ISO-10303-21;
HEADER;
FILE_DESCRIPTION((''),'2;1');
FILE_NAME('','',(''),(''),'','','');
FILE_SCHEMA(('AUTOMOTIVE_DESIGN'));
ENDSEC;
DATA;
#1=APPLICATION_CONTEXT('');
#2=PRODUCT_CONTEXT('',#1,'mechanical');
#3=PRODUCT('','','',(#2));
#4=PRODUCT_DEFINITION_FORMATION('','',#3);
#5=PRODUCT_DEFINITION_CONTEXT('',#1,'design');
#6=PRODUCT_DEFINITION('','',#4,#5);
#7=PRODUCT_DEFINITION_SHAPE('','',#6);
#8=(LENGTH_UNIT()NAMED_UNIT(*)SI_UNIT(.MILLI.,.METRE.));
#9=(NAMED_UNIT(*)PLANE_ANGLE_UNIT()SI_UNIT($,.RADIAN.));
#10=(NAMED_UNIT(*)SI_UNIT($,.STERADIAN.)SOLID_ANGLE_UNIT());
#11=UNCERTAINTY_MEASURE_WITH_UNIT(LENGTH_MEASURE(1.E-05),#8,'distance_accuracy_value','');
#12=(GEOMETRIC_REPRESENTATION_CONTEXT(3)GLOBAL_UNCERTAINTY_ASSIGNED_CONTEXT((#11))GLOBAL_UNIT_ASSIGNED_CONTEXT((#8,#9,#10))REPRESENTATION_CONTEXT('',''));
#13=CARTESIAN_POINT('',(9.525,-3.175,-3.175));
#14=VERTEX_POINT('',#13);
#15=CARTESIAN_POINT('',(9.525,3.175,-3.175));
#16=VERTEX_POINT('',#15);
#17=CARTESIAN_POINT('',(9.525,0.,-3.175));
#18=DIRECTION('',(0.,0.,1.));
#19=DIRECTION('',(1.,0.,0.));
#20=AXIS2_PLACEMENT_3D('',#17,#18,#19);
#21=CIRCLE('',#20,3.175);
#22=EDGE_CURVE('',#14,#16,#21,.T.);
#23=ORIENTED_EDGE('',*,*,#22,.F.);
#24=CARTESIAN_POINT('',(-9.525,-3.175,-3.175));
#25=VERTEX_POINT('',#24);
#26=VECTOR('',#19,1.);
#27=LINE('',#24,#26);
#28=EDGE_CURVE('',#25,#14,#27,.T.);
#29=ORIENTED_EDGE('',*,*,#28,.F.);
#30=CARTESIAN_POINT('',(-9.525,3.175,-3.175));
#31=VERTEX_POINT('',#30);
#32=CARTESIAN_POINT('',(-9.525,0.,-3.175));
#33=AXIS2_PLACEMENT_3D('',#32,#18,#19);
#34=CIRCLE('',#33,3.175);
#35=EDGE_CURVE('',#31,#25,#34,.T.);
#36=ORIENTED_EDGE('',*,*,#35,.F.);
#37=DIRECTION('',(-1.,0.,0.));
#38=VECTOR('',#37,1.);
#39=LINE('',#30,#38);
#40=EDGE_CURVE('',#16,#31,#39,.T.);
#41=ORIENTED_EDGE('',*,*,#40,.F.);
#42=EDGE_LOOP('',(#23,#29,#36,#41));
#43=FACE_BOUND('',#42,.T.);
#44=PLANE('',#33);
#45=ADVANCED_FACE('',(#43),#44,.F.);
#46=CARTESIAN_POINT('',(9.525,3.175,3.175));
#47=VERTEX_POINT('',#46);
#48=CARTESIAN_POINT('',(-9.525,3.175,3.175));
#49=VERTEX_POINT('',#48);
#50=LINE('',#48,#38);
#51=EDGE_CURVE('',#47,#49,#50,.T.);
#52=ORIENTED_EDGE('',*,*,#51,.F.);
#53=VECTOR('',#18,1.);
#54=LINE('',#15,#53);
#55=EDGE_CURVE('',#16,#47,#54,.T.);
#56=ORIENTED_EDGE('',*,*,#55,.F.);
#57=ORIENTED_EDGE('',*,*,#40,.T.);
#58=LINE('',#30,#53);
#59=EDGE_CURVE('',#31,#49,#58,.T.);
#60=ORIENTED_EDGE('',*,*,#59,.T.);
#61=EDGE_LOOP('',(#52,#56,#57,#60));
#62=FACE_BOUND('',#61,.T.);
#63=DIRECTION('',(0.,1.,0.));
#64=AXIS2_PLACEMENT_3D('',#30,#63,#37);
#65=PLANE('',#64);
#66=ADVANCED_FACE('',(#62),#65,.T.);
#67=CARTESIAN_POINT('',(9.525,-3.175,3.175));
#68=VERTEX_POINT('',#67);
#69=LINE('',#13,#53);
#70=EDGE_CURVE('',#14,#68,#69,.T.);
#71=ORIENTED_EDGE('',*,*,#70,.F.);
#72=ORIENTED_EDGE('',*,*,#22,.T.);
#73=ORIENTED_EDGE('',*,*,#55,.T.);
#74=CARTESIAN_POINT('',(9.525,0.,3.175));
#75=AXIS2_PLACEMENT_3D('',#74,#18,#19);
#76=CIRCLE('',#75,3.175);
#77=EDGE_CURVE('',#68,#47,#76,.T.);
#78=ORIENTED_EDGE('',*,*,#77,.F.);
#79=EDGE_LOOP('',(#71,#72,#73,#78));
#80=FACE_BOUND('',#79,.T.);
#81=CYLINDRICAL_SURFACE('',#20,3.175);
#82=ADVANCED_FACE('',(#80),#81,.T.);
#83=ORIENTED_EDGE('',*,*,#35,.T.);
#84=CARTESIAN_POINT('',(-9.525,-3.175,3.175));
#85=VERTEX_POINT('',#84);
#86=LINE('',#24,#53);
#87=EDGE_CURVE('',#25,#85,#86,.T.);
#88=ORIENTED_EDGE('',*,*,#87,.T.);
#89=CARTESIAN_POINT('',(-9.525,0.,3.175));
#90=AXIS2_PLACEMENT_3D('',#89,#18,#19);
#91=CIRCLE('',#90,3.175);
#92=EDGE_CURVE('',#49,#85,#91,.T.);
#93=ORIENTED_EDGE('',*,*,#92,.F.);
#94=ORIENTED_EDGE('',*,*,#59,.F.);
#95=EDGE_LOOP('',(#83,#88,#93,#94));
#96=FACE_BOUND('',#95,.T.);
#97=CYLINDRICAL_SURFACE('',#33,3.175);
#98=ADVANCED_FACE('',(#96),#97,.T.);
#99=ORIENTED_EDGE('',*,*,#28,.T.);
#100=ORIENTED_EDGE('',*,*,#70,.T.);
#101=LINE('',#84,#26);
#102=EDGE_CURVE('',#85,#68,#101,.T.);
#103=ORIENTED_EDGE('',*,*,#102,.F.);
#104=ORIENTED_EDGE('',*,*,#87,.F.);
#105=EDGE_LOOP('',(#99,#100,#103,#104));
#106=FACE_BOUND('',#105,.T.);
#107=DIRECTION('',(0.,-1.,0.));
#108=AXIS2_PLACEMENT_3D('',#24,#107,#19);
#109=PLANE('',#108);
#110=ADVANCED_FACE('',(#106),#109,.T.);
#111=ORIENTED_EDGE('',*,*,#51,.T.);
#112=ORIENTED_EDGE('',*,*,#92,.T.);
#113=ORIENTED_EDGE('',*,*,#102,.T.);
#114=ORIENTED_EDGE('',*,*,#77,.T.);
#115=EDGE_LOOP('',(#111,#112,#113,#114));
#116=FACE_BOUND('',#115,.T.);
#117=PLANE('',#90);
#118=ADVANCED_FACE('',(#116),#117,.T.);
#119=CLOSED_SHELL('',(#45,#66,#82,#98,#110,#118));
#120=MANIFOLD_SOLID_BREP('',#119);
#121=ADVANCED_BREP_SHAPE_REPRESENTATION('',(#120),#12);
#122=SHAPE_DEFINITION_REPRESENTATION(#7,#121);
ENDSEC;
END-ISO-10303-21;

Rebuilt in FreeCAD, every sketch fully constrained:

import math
import FreeCAD as App
import Part
import Sketcher

V = App.Vector
Q = App.Units.Quantity

doc = App.newDocument("Part")
body = doc.addObject("PartDesign::Body", "Body")

sketch1 = doc.addObject("Sketcher::SketchObject", "Sketch")
body.addObject(sketch1)
sketch1.AttachmentSupport = (doc.XY_Plane, [""])
sketch1.MapMode = "FlatFace"
sketch1.addGeometry([
    Part.LineSegment(V(9.525, 3.175, 0), V(-9.525, 3.175, 0)),
    Part.ArcOfCircle(Part.Circle(V(-9.525, 0, 0), V(0, 0, 1), 3.175), math.radians(90), math.radians(270)),
    Part.LineSegment(V(-9.525, -3.175, 0), V(9.525, -3.175, 0)),
    Part.ArcOfCircle(Part.Circle(V(9.525, 0, 0), V(0, 0, 1), 3.175), math.radians(-90), math.radians(90)),
], False)
sketch1.addConstraint([
    Sketcher.Constraint("Tangent", 0, 2, 1, 1),
    Sketcher.Constraint("Tangent", 1, 2, 2, 1),
    Sketcher.Constraint("Tangent", 2, 2, 3, 1),
    Sketcher.Constraint("Tangent", 3, 2, 0, 1),
    Sketcher.Constraint("Horizontal", 0),
    Sketcher.Constraint("Horizontal", 2),
    Sketcher.Constraint("Symmetric", 1, 3, 3, 3, -1, 1),
    Sketcher.Constraint("Radius", 1, Q("0.125 in")),
    Sketcher.Constraint("DistanceX", 0, 2, 0, 1, Q("0.75 in")),
])
pad1 = doc.addObject("PartDesign::Pad", "Pad")
body.addObject(pad1)
pad1.Profile = sketch1
pad1.Type = "TwoLengths"
pad1.Length = Q("0.125 in")
pad1.Length2 = Q("0.125 in")

doc.recompute()
